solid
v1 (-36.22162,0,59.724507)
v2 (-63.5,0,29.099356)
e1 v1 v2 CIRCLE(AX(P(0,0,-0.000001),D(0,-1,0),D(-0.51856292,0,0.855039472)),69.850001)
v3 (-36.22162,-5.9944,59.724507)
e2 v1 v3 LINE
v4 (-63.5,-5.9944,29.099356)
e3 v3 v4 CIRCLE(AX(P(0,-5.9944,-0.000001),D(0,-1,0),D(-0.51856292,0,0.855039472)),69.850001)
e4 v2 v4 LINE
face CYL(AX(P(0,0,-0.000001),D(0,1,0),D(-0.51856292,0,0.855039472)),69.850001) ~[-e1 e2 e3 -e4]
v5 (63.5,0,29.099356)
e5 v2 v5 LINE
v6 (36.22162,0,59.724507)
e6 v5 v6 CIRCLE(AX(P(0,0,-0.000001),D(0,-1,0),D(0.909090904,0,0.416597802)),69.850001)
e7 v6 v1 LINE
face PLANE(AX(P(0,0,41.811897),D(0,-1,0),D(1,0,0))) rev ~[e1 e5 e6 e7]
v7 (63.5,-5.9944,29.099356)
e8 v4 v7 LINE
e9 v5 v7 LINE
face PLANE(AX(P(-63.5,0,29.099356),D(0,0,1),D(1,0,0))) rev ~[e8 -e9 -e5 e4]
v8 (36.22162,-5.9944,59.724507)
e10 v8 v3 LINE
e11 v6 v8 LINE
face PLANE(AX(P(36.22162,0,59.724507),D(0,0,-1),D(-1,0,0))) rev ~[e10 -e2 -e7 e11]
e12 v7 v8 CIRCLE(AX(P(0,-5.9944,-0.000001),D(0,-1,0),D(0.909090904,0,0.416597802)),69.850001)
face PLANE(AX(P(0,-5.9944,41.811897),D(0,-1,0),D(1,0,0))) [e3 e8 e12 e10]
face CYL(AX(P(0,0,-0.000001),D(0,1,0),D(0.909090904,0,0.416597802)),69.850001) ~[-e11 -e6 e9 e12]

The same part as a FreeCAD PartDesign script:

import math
import FreeCAD as App
import Part
import Sketcher

V = App.Vector
Q = App.Units.Quantity

doc = App.newDocument("Part")
body = doc.addObject("PartDesign::Body", "Body")

sketch1 = body.newObject("Sketcher::SketchObject", "Sketch")
sketch1.AttachmentSupport = (doc.getObject("XZ_Plane"), [""])
sketch1.MapMode = "FlatFace"
sketch1.addGeometry(Part.ArcOfCircle(Part.Circle(V(0, -0.000001, 0), V(0, 0, 1), 69.850001), math.radians(121.235904), math.radians(155.380022)), False)
sketch1.addGeometry(Part.LineSegment(V(-63.5, 29.099356, 0), V(63.5, 29.099356, 0)), False)
sketch1.addGeometry(Part.ArcOfCircle(Part.Circle(V(0, -0.000001, 0), V(0, 0, 1), 69.850001), math.radians(24.619978), math.radians(58.764096)), False)
sketch1.addGeometry(Part.LineSegment(V(36.22162, 59.724507, 0), V(-36.22162, 59.724507, 0)), False)
sketch1.addConstraint(Sketcher.Constraint("Coincident", 0, 2, 1, 1))
sketch1.addConstraint(Sketcher.Constraint("Coincident", 1, 2, 2, 1))
sketch1.addConstraint(Sketcher.Constraint("Coincident", 2, 2, 3, 1))
sketch1.addConstraint(Sketcher.Constraint("Coincident", 3, 2, 0, 1))
sketch1.addConstraint(Sketcher.Constraint("Horizontal", 1))
sketch1.addConstraint(Sketcher.Constraint("Horizontal", 3))
sketch1.addConstraint(Sketcher.Constraint("Coincident", 0, 3, -1, 1))
sketch1.addConstraint(Sketcher.Constraint("Coincident", 2, 3, -1, 1))
sketch1.addConstraint(Sketcher.Constraint("Equal", 0, 2))
sketch1.addConstraint(Sketcher.Constraint("DistanceX", 1, 1, 1, 2, Q("5 in")))
sketch1.addConstraint(Sketcher.Constraint("Radius", 0, Q("2.75 in")))
sketch1.addConstraint(Sketcher.Constraint("DistanceX", 3, 2, 3, 1, Q("72.44324 mm")))
pad1 = body.newObject("PartDesign::Pad", "Pad")
pad1.Profile = sketch1
pad1.Length = Q("0.236 in")

doc.recompute()
